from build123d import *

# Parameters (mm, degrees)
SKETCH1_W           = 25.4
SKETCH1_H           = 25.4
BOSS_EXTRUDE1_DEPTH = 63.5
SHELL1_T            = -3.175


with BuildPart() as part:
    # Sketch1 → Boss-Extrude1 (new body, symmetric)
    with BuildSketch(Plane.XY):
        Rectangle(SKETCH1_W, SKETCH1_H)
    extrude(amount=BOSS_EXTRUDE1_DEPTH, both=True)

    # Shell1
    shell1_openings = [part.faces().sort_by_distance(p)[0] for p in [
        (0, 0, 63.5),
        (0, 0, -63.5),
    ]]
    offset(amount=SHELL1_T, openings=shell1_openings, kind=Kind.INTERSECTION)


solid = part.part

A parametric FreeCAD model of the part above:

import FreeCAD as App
import Part
import Sketcher
Q = App.Units.Quantity


def faces_at(feature, points):
    """Names of the faces that lie closest to the given points."""
    faces = feature.Shape.Faces
    near = lambda p: min(range(len(faces)), key=lambda i: faces[i].distToShape(Part.Vertex(*p))[0])
    return sorted({f"Face{near(p) + 1}" for p in points})

doc = App.newDocument("Part")
body = doc.addObject("PartDesign::Body", "Body")

# Sketch on XY plane
sketch1 = body.newObject("Sketcher::SketchObject", "Sketch")
sketch1.AttachmentSupport = (doc.getObject("XY_Plane"), [""])
sketch1.MapMode = "FlatFace"
sketch1.addGeometry([
    Part.LineSegment(App.Vector(-13, 13, 0), App.Vector(-13, -13, 0)),
    Part.LineSegment(App.Vector(-13, -13, 0), App.Vector(13, -13, 0)),
    Part.LineSegment(App.Vector(13, -13, 0), App.Vector(13, 13, 0)),
    Part.LineSegment(App.Vector(13, 13, 0), App.Vector(-13, 13, 0)),
], False)
sketch1.addConstraint([
    Sketcher.Constraint("Coincident", 0, 2, 1, 1),
    Sketcher.Constraint("Coincident", 1, 2, 2, 1),
    Sketcher.Constraint("Coincident", 2, 2, 3, 1),
    Sketcher.Constraint("Coincident", 3, 2, 0, 1),
    Sketcher.Constraint("Vertical", 0),
    Sketcher.Constraint("Horizontal", 1),
    Sketcher.Constraint("Vertical", 2),
    Sketcher.Constraint("Horizontal", 3),
    Sketcher.Constraint("Symmetric", 0, 2, 2, 2, -1, 1),
    Sketcher.Constraint("Equal", 3, 0),
    Sketcher.Constraint("DistanceX", 1, 1, 1, 2, Q("1 in")),
])
pad1 = body.newObject("PartDesign::Pad", "Pad")
pad1.Profile = sketch1
pad1.Length = Q("5 in")
pad1.Midplane = True
doc.recompute()

thickness = body.newObject("PartDesign::Thickness", "Thickness")
thickness.Base = (pad1, faces_at(pad1, [(0, 0, 63.5), (0, 0, -63.5)]))
thickness.Value = Q("0.125 in")
thickness.Reversed = True
thickness.Join = "Intersection"

doc.recompute()
